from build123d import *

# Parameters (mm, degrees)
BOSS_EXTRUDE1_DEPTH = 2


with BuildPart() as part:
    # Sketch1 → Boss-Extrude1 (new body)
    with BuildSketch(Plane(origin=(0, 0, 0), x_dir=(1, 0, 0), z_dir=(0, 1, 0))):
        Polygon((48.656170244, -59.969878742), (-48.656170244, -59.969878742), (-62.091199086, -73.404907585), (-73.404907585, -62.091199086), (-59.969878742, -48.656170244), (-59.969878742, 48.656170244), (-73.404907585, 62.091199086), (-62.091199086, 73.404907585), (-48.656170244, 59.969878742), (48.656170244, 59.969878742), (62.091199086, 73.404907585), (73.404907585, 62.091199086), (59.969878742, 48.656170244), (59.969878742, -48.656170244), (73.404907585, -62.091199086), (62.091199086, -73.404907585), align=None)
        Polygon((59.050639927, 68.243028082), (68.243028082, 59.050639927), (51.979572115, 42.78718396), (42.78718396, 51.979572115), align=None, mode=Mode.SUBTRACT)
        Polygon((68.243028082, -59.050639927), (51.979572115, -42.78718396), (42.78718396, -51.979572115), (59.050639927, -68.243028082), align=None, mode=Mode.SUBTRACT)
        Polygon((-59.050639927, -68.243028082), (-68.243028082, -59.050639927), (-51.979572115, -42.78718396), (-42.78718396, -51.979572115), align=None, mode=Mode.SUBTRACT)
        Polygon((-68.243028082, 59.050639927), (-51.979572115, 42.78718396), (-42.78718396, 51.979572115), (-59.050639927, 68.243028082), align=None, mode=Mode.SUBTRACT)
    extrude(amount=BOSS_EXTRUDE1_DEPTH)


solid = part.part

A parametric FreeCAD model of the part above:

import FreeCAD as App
import Part
import Sketcher

V = App.Vector
Q = App.Units.Quantity


def add_polygon(sketch, points):
    """Adds a closed chain of lines whose ends are joined by coincident constraints."""
    first, n = sketch.GeometryCount, len(points)
    for a, b in zip(points, points[1:] + points[:1]):
        sketch.addGeometry(Part.LineSegment(App.Vector(*a, 0), App.Vector(*b, 0)), False)
    for i in range(n):
        sketch.addConstraint(Sketcher.Constraint("Coincident", first + i, 2, first + (i + 1) % n, 1))

doc = App.newDocument("Part")
body = doc.addObject("PartDesign::Body", "Body")

sketch1 = body.newObject("Sketcher::SketchObject", "Sketch")
sketch1.AttachmentSupport = (doc.getObject("XZ_Plane"), [""])
sketch1.MapMode = "FlatFace"
add_polygon(sketch1, [(-49, 60), (49, 60), (62, 73), (73, 62), (60, 49), (60, -49), (73, -62), (62, -73), (49, -60), (-49, -60), (-62, -73), (-73, -62), (-60, -49), (-60, 49), (-73, 62), (-62, 73)])
add_polygon(sketch1, [(68, 59), (59, 68), (43, 52), (52, 43)])
add_polygon(sketch1, [(-59, 68), (-68, 59), (-52, 43), (-43, 52)])
add_polygon(sketch1, [(59, -68), (68, -59), (52, -43), (43, -52)])
add_polygon(sketch1, [(-68, -59), (-59, -68), (-43, -52), (-52, -43)])
sketch1.addConstraint([
    Sketcher.Constraint("Horizontal", 0),
    Sketcher.Constraint("Vertical", 4),
    Sketcher.Constraint("Horizontal", 8),
    Sketcher.Constraint("Vertical", 12),
    Sketcher.Constraint("Symmetric", 0, 2, 8, 2, -1, 1),
    Sketcher.Constraint("Symmetric", 1, 2, 9, 2, -1, 1),
    Sketcher.Constraint("Symmetric", 2, 2, 10, 2, -1, 1),
    Sketcher.Constraint("Symmetric", 3, 2, 11, 2, -1, 1),
    Sketcher.Constraint("Symmetric", 5, 2, 13, 2, -1, 1),
    Sketcher.Constraint("Symmetric", 6, 2, 14, 2, -1, 1),
    Sketcher.Constraint("Symmetric", 20, 2, 24, 2, -1, 1),
    Sketcher.Constraint("Symmetric", 21, 2, 25, 2, -1, 1),
    Sketcher.Constraint("Symmetric", 22, 2, 26, 2, -1, 1),
    Sketcher.Constraint("Symmetric", 23, 2, 27, 2, -1, 1),
    Sketcher.Constraint("Symmetric", 16, 2, 28, 2, -1, 1),
    Sketcher.Constraint("Symmetric", 17, 2, 29, 2, -1, 1),
    Sketcher.Constraint("Symmetric", 18, 2, 30, 2, -1, 1),
    Sketcher.Constraint("Symmetric", 19, 2, 31, 2, -1, 1),
    Sketcher.Constraint("Symmetric", 6, 2, 9, 2, -2),
    Sketcher.Constraint("Symmetric", 5, 2, 10, 2, -2),
    Sketcher.Constraint("Symmetric", 19, 2, 20, 2, -2),
    Sketcher.Constraint("Symmetric", 18, 2, 21, 2, -2),
    Sketcher.Constraint("Symmetric", 17, 2, 22, 2, -2),
    Sketcher.Constraint("Symmetric", 16, 2, 23, 2, -2),
    Sketcher.Constraint("Perpendicular", 1, 2),
    Sketcher.Constraint("Perpendicular", 2, 3),
    Sketcher.Constraint("Perpendicular", 3, 5),
    Sketcher.Constraint("Perpendicular", 5, 6),
    Sketcher.Constraint("Perpendicular", 6, 7),
    Sketcher.Constraint("Perpendicular", 11, 13),
    Sketcher.Constraint("Perpendicular", 14, 15),
    Sketcher.Constraint("Parallel", 15, 16),
    Sketcher.Constraint("Perpendicular", 16, 17),
    Sketcher.Constraint("Perpendicular", 17, 18),
    Sketcher.Constraint("Perpendicular", 18, 19),
    Sketcher.Constraint("Equal", 8, 4),
    Sketcher.Constraint("Equal", 1, 3),
    Sketcher.Constraint("Distance", 1, Q("19 mm")),
    Sketcher.Constraint("Distance", 2, Q("16 mm")),
    Sketcher.Constraint("Distance", 16, Q("13 mm")),
    Sketcher.Constraint("Distance", 17, Q("23 mm")),
    Sketcher.Constraint("DistanceX", 0, 1, 0, 2, Q("97.31234 mm")),
    Sketcher.Constraint("DistanceY", 3, 2, 17, 2, Q("3.323402 mm")),
    Sketcher.Constraint("DistanceX", 0, 2, 18, 2, Q("3.323402 mm")),
])
pad1 = body.newObject("PartDesign::Pad", "Pad")
pad1.Profile = sketch1
pad1.Length = 2
pad1.Reversed = True

doc.recompute()
